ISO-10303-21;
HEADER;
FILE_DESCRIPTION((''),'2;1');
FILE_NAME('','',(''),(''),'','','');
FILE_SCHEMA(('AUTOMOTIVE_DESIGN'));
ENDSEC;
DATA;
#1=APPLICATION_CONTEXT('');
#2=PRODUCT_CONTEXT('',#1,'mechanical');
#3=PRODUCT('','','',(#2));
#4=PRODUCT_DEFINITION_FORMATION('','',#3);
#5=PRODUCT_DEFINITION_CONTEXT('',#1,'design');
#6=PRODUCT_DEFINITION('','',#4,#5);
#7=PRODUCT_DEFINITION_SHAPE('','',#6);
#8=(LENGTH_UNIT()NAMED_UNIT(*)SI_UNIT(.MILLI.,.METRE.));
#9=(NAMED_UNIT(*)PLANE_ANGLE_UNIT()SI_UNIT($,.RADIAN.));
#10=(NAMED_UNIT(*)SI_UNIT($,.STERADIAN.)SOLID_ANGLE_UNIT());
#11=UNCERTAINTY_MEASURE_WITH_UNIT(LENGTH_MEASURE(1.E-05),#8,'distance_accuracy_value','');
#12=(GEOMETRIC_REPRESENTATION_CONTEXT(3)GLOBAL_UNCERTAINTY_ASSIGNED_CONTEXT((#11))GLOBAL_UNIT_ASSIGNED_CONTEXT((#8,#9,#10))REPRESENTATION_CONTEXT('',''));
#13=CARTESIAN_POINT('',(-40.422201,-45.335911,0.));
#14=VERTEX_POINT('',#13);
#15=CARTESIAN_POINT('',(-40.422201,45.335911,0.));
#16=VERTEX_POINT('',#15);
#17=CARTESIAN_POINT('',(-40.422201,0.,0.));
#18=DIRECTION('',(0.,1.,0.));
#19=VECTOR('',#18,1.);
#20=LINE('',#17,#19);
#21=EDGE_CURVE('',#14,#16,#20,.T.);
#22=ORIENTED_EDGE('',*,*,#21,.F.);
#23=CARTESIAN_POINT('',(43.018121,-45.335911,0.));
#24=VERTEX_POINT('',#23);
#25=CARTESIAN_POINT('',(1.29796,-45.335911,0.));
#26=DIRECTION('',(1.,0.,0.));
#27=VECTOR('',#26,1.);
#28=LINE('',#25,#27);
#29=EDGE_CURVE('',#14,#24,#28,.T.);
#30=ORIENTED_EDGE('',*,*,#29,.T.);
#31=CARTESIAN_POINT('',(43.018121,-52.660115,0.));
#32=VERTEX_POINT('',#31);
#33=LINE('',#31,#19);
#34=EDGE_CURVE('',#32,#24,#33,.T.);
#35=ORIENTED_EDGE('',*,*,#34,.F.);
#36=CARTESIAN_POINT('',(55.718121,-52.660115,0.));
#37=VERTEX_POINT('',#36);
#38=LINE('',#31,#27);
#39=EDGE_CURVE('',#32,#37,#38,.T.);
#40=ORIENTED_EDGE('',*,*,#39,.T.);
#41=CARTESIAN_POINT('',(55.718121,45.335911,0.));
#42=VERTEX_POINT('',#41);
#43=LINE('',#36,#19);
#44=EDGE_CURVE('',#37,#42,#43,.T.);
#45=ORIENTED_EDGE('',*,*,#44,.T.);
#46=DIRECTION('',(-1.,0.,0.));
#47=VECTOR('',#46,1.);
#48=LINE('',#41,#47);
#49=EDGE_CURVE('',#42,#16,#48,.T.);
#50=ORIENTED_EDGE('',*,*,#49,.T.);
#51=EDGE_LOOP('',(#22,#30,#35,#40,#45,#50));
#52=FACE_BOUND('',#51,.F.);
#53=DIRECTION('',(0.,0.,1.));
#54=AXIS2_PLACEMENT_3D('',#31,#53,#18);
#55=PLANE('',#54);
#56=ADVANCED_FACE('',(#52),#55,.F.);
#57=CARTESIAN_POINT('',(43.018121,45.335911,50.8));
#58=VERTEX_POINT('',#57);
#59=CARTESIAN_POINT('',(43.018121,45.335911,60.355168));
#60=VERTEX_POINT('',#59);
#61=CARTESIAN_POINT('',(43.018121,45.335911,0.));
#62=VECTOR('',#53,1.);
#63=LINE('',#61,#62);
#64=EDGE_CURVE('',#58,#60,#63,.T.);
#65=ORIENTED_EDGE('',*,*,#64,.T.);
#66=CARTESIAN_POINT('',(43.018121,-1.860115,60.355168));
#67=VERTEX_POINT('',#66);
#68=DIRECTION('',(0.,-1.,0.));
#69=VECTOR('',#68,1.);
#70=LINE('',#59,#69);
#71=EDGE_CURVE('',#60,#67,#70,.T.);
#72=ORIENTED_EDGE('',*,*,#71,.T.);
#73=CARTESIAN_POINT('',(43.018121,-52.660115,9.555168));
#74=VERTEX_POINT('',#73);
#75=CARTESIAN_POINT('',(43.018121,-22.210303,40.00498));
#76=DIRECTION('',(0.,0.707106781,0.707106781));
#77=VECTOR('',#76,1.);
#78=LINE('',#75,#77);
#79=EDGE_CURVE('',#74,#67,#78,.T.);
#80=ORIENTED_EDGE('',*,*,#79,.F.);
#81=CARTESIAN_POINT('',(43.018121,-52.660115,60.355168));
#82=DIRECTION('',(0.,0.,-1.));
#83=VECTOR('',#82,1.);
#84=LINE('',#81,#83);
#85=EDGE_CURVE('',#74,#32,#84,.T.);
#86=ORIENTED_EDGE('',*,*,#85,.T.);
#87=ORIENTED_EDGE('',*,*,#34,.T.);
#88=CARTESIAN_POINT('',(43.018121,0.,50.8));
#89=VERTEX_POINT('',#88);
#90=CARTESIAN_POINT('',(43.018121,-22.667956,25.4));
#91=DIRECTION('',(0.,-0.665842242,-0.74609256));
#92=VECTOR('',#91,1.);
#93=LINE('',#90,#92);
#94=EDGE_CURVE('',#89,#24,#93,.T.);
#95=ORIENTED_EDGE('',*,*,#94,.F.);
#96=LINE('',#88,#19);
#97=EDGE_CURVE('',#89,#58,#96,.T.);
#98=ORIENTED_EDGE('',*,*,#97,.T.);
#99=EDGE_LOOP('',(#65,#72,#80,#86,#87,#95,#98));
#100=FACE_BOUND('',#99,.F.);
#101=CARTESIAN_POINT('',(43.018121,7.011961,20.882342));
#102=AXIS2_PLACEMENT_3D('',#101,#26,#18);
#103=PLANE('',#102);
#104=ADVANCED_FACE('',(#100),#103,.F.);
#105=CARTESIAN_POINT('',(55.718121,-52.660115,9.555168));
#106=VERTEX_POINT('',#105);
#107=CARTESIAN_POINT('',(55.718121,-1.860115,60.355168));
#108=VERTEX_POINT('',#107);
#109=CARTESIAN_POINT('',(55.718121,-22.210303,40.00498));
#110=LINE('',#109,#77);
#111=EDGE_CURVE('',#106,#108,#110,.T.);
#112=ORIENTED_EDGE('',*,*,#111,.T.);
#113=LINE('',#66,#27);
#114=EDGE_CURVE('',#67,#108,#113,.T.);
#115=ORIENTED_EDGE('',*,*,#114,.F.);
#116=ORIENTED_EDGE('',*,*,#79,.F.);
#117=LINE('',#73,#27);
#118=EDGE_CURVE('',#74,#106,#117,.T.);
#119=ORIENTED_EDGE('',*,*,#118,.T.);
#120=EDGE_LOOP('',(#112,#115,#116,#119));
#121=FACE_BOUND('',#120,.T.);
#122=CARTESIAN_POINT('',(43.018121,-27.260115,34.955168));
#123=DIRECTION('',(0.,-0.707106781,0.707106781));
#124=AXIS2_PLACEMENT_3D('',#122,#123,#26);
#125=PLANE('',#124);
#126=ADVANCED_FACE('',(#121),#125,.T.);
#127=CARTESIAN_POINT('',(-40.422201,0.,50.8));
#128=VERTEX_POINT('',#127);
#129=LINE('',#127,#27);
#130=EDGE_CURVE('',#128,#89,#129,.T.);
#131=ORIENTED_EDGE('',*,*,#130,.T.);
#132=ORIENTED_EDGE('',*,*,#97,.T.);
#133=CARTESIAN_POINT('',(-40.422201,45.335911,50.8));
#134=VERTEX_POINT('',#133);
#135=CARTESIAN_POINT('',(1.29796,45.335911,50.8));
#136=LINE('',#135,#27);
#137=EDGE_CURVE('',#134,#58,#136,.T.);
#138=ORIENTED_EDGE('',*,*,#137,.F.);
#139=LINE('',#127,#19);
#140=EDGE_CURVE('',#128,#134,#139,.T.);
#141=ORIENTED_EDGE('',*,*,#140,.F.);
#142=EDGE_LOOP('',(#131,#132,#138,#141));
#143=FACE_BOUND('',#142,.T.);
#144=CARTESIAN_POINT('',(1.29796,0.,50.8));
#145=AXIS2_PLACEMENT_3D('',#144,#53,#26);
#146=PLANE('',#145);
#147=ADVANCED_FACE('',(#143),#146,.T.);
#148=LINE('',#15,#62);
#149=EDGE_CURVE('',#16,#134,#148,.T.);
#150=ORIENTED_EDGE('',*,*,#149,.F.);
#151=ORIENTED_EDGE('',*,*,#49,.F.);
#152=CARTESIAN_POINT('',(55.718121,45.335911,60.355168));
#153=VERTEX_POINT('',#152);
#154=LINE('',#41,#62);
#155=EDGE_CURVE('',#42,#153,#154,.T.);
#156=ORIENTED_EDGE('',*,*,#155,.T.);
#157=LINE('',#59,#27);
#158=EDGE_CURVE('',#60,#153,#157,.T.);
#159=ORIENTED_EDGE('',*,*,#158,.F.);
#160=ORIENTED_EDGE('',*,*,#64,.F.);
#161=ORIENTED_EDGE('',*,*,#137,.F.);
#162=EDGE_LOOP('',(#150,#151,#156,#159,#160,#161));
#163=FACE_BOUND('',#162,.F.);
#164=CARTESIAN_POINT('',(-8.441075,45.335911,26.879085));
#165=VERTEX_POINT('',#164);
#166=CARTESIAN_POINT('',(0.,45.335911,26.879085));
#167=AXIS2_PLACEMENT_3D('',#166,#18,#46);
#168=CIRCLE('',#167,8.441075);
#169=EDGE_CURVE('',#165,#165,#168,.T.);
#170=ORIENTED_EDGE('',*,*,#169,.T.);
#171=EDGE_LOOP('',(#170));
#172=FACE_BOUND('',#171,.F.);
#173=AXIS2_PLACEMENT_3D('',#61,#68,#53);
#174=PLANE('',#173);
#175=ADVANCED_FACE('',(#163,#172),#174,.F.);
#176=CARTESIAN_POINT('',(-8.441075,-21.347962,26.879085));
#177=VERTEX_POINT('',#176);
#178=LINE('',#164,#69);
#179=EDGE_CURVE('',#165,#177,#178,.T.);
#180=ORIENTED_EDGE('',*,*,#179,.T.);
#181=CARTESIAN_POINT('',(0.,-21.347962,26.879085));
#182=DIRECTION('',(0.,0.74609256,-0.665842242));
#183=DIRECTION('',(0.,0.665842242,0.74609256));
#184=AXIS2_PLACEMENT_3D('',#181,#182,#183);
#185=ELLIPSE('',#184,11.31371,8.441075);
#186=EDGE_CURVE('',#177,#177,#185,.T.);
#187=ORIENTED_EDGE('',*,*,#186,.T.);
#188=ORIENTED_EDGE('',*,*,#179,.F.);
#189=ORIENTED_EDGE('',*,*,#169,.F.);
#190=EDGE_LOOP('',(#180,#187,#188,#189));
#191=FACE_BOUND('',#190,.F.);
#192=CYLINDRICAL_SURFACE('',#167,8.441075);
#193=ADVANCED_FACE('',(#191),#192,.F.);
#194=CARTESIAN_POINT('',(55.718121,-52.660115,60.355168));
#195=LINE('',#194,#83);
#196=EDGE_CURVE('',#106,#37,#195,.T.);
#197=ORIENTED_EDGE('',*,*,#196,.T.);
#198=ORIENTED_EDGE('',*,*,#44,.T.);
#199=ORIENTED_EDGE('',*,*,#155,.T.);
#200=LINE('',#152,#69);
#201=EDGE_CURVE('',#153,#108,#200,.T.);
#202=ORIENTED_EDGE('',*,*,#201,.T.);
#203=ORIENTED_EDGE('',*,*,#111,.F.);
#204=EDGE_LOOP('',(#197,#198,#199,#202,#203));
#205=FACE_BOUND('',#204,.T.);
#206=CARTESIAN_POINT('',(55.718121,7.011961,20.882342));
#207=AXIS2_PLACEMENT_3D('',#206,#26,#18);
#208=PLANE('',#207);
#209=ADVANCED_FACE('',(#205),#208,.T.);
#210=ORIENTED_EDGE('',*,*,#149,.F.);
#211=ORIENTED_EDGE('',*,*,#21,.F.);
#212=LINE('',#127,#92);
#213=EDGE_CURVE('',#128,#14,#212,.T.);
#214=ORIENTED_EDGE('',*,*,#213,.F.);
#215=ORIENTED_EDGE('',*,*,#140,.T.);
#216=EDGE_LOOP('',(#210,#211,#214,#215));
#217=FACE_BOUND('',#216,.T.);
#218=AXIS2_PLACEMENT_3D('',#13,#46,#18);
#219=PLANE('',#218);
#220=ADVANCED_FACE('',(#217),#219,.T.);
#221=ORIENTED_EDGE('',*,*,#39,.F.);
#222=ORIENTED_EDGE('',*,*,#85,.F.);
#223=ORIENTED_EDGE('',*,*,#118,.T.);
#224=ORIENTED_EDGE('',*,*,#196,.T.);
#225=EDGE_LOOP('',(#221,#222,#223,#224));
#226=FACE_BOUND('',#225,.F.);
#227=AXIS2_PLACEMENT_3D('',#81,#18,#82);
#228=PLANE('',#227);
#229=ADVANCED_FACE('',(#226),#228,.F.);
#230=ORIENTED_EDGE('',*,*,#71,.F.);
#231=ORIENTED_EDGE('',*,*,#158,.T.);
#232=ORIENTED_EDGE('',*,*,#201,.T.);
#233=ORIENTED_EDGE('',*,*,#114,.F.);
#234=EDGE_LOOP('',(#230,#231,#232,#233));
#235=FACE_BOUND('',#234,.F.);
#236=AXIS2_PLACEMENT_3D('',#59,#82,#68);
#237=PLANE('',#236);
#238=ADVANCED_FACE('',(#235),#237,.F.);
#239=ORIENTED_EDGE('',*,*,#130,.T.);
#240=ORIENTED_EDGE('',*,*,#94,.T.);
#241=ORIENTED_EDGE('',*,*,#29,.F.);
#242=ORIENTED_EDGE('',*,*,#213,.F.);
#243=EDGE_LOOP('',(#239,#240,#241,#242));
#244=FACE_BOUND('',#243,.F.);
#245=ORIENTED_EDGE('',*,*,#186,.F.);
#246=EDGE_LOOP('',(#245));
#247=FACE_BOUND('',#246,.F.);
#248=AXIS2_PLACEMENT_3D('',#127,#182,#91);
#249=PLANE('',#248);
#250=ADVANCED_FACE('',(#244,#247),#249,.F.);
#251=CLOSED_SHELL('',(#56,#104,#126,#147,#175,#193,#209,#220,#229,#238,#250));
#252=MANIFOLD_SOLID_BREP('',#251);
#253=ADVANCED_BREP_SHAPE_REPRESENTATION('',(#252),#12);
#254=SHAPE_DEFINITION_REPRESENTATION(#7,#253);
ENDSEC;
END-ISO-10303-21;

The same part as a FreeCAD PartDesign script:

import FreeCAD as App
import Part
import Sketcher
from FreeCAD import Vector
Q = App.Units.Quantity


def edges_at(feature, points):
    """Names of the edges that pass closest to the given points."""
    edges = feature.Shape.Edges
    near = lambda p: min(range(len(edges)), key=lambda i: edges[i].distToShape(Part.Vertex(*p))[0])
    return sorted({f"Edge{near(p) + 1}" for p in points})

doc = App.newDocument("Part")
params = doc.addObject("Spreadsheet::Sheet", "Params")
for row, (alias, value) in enumerate([
    ("pad1_length", "2 in"),
    ("sketch2_height", "2 in"),
    ("pad2_length", "0.5 in"),
    ("chamfer_size", "2 in"),
], start=1):
    params.set(f"A{row}", alias)
    params.set(f"B{row}", "=" + value)
    params.setAlias(f"B{row}", alias)

body = doc.addObject("PartDesign::Body", "Body")

sketch1 = body.newObject("Sketcher::SketchObject", "Sketch")
sketch1.AttachmentSupport = (doc.getObject("XY_Plane"), [""])
sketch1.MapMode = "FlatFace"
sketch1.addGeometry([
    Part.LineSegment(Vector(-40, 45, 0), Vector(-40, -45, 0)),
    Part.LineSegment(Vector(-40, -45, 0), Vector(43, -45, 0)),
    Part.LineSegment(Vector(43, -45, 0), Vector(43, 45, 0)),
    Part.LineSegment(Vector(43, 45, 0), Vector(-40, 45, 0)),
], False)
sketch1.addConstraint([
    Sketcher.Constraint("Coincident", 0, 2, 1, 1),
    Sketcher.Constraint("Coincident", 1, 2, 2, 1),
    Sketcher.Constraint("Coincident", 2, 2, 3, 1),
    Sketcher.Constraint("Coincident", 3, 2, 0, 1),
    Sketcher.Constraint("Vertical", 0),
    Sketcher.Constraint("Horizontal", 1),
    Sketcher.Constraint("Vertical", 2),
    Sketcher.Constraint("Horizontal", 3),
    Sketcher.Constraint("DistanceX", 0, 2, -1, 1, Q("40.422201 mm")),
    Sketcher.Constraint("DistanceX", 1, 1, 1, 2, Q("83.440322 mm")),
    Sketcher.Constraint("DistanceY", 0, 2, 0, 1, Q("90.671822 mm")),
    Sketcher.Constraint("DistanceY", 0, 2, -1, 1, Q("45.335911 mm")),
])
pad1 = body.newObject("PartDesign::Pad", "Pad")
pad1.Profile = sketch1
pad1.setExpression("Length", "Params.pad1_length")

sketch2 = body.newObject("Sketcher::SketchObject", "Sketch001")
sketch2.AttachmentSupport = (doc.getObject("YZ_Plane"), [""])
sketch2.MapMode = "FlatFace"
sketch2.AttachmentOffset = App.Placement(Vector(0, 0, -40.422201), App.Rotation())
sketch2.addGeometry([
    Part.LineSegment(Vector(-45, 51, 0), Vector(0, 51, 0)),
    Part.LineSegment(Vector(0, 51, 0), Vector(-45, 0, 0)),
    Part.LineSegment(Vector(-45, 0, 0), Vector(-45, 51, 0)),
], False)
sketch2.addConstraint([
    Sketcher.Constraint("Coincident", 0, 2, 1, 1),
    Sketcher.Constraint("Coincident", 1, 2, 2, 1),
    Sketcher.Constraint("Coincident", 2, 2, 0, 1),
    Sketcher.Constraint("Horizontal", 0),
    Sketcher.Constraint("Vertical", 2),
    Sketcher.Constraint("PointOnObject", 0, 2, -2),
    Sketcher.Constraint("PointOnObject", 1, 2, -1),
    Sketcher.Constraint("DistanceY", 2, 1, 2, 2, Q("2 in")),
    Sketcher.Constraint("DistanceX", 0, 1, 0, 2, Q("45.335911 mm")),
])
sketch2.setExpression("Constraints[7]", "Params.sketch2_height")
pocket1 = body.newObject("PartDesign::Pocket", "Pocket")
pocket1.Profile = sketch2
pocket1.Type = "ThroughAll"
pocket1.Reversed = True

sketch3 = body.newObject("Sketcher::SketchObject", "Sketch002")
sketch3.AttachmentSupport = (doc.getObject("XZ_Plane"), [""])
sketch3.MapMode = "FlatFace"
sketch3.AttachmentOffset = App.Placement(Vector(0, 0, -45.335911), App.Rotation())
sketch3.addGeometry(Part.Circle(Vector(0, 27, 0), Vector(0, 0, 1), 8), False)
sketch3.addConstraint([
    Sketcher.Constraint("PointOnObject", 0, 3, -2),
    Sketcher.Constraint("Diameter", 0, Q("16.88215 mm")),
    Sketcher.Constraint("DistanceY", -1, 1, 0, 3, Q("26.879085 mm")),
])
pocket2 = body.newObject("PartDesign::Pocket", "Pocket001")
pocket2.Profile = sketch3
pocket2.Type = "ThroughAll"
pocket2.Reversed = True

sketch4 = body.newObject("Sketcher::SketchObject", "Sketch003")
sketch4.AttachmentSupport = (doc.getObject("YZ_Plane"), [""])
sketch4.MapMode = "FlatFace"
sketch4.AttachmentOffset = App.Placement(Vector(0, 0, 43.018121), App.Rotation())
sketch4.addGeometry([
    Part.LineSegment(Vector(45, 0, 0), Vector(45, 60, 0)),
    Part.LineSegment(Vector(45, 60, 0), Vector(-53, 60, 0)),
    Part.LineSegment(Vector(-53, 60, 0), Vector(-53, 0, 0)),
    Part.LineSegment(Vector(-53, 0, 0), Vector(45, 0, 0)),
], False)
sketch4.addConstraint([
    Sketcher.Constraint("Coincident", 0, 2, 1, 1),
    Sketcher.Constraint("Coincident", 1, 2, 2, 1),
    Sketcher.Constraint("Coincident", 2, 2, 3, 1),
    Sketcher.Constraint("Coincident", 3, 2, 0, 1),
    Sketcher.Constraint("Vertical", 0),
    Sketcher.Constraint("Horizontal", 1),
    Sketcher.Constraint("Vertical", 2),
    Sketcher.Constraint("Horizontal", 3),
    Sketcher.Constraint("PointOnObject", 2, 2, -1),
    Sketcher.Constraint("DistanceX", 1, 2, 1, 1, Q("97.996026 mm")),
    Sketcher.Constraint("DistanceY", 0, 1, 0, 2, Q("60.355168 mm")),
    Sketcher.Constraint("DistanceX", -1, 1, 0, 2, Q("45.335911 mm")),
])
pad2 = body.newObject("PartDesign::Pad", "Pad001")
pad2.Profile = sketch4
pad2.setExpression("Length", "Params.pad2_length")
doc.recompute()

chamfer = body.newObject("PartDesign::Chamfer", "Chamfer")
chamfer.Base = (pad2, edges_at(pad2, [(49.368, -52.66, 60.355)]))
chamfer.setExpression("Size", "Params.chamfer_size")

doc.recompute()
